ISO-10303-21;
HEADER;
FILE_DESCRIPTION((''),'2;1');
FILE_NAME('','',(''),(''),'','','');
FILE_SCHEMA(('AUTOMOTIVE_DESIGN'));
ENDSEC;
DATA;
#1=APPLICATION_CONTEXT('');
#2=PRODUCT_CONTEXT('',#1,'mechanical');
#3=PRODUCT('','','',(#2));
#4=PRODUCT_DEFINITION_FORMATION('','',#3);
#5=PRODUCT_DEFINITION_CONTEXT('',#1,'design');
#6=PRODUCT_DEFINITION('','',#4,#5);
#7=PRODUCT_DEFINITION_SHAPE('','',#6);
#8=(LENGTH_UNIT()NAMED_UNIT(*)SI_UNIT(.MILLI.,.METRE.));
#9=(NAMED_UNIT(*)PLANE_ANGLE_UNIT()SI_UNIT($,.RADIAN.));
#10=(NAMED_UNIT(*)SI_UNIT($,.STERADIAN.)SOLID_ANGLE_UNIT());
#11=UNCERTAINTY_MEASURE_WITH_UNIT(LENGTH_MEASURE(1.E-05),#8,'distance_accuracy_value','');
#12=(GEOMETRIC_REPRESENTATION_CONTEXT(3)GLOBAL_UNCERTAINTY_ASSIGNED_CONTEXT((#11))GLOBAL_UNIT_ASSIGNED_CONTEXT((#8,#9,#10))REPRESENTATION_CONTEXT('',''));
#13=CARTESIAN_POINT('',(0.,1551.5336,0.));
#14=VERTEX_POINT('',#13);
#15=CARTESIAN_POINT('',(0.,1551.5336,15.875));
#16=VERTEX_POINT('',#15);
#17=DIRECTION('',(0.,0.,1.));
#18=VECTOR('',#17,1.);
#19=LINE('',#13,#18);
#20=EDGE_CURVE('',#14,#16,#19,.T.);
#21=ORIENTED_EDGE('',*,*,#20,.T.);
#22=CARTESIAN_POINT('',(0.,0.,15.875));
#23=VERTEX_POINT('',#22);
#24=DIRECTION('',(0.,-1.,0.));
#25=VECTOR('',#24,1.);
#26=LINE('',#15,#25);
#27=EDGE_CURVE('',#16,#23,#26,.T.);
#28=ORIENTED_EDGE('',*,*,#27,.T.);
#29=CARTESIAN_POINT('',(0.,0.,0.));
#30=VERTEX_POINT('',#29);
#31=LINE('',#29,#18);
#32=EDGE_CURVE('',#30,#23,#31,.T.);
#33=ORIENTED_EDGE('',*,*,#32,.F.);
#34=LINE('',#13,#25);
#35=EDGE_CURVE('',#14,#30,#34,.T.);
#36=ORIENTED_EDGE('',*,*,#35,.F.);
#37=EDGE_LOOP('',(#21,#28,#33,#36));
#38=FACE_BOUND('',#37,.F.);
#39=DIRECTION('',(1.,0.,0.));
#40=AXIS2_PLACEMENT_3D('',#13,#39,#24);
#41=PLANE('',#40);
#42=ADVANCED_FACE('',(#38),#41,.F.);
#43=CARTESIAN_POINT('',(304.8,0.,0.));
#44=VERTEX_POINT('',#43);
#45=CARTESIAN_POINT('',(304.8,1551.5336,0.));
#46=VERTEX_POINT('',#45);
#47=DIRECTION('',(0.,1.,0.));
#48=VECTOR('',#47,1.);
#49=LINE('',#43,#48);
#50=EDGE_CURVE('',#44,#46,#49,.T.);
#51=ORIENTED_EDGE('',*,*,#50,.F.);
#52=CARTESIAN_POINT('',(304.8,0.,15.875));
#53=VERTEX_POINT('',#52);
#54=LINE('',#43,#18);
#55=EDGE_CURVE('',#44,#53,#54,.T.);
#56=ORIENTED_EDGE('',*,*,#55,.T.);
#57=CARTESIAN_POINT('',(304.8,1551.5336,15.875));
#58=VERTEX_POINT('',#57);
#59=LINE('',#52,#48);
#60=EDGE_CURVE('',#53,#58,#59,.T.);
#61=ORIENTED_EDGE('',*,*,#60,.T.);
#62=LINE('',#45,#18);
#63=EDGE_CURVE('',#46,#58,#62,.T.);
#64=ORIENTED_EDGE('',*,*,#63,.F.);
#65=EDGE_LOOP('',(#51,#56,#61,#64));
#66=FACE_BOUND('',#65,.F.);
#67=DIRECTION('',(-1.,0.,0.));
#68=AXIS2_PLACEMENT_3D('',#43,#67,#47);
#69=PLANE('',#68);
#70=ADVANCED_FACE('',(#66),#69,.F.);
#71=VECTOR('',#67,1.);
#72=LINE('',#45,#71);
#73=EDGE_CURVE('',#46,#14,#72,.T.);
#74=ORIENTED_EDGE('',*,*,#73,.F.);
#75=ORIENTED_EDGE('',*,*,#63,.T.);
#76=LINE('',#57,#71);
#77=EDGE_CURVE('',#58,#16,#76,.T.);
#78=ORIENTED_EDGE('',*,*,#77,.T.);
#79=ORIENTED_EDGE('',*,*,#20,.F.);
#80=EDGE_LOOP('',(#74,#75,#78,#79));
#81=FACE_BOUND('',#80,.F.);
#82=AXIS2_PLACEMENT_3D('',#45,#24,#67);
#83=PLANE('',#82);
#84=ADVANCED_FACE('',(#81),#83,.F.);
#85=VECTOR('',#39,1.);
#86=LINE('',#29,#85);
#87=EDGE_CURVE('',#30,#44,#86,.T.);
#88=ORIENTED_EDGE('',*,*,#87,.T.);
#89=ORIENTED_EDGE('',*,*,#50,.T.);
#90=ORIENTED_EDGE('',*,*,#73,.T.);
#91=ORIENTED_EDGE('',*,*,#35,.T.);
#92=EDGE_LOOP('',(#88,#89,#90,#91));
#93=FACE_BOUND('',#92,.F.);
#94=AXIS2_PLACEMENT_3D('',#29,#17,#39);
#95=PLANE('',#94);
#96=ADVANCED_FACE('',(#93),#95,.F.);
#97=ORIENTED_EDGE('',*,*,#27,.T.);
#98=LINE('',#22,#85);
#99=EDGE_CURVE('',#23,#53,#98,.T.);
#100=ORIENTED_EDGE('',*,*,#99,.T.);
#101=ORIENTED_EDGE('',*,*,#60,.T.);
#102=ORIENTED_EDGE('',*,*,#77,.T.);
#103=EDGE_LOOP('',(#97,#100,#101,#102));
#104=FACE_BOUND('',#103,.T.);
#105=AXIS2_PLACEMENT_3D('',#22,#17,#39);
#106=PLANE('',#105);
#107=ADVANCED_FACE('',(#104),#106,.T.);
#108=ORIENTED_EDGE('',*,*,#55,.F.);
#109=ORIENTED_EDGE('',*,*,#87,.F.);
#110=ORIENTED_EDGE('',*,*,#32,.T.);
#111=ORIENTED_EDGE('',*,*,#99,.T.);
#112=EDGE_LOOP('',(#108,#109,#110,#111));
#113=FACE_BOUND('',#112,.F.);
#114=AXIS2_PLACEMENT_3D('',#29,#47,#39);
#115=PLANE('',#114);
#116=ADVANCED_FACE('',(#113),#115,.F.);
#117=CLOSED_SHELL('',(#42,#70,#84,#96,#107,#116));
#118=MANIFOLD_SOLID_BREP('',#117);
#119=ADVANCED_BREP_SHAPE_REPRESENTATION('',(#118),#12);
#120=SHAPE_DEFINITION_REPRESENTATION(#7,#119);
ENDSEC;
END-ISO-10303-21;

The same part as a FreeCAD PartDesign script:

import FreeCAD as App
import Part
import Sketcher
from FreeCAD import Vector
Q = App.Units.Quantity

doc = App.newDocument("Part")
body = doc.addObject("PartDesign::Body", "Body")

sketch1 = body.newObject("Sketcher::SketchObject", "Sketch")
sketch1.AttachmentSupport = (doc.getObject("XY_Plane"), [""])
sketch1.MapMode = "FlatFace"
sketch1.addGeometry([
    Part.LineSegment(Vector(0, 1552, 0), Vector(0, 0, 0)),
    Part.LineSegment(Vector(0, 0, 0), Vector(305, 0, 0)),
    Part.LineSegment(Vector(305, 0, 0), Vector(305, 1552, 0)),
    Part.LineSegment(Vector(305, 1552, 0), Vector(0, 1552, 0)),
], False)
sketch1.addConstraint([
    Sketcher.Constraint("Coincident", 0, 2, 1, 1),
    Sketcher.Constraint("Coincident", 1, 2, 2, 1),
    Sketcher.Constraint("Coincident", 2, 2, 3, 1),
    Sketcher.Constraint("Coincident", 3, 2, 0, 1),
    Sketcher.Constraint("Vertical", 0),
    Sketcher.Constraint("Horizontal", 1),
    Sketcher.Constraint("Vertical", 2),
    Sketcher.Constraint("Horizontal", 3),
    Sketcher.Constraint("Coincident", 0, 2, -1, 1),
    Sketcher.Constraint("DistanceX", 1, 1, 1, 2, Q("12 in")),
    Sketcher.Constraint("DistanceY", 0, 2, 0, 1, Q("61.084 in")),
])
pad1 = body.newObject("PartDesign::Pad", "Pad")
pad1.Profile = sketch1
pad1.Length = Q("0.625 in")

doc.recompute()
